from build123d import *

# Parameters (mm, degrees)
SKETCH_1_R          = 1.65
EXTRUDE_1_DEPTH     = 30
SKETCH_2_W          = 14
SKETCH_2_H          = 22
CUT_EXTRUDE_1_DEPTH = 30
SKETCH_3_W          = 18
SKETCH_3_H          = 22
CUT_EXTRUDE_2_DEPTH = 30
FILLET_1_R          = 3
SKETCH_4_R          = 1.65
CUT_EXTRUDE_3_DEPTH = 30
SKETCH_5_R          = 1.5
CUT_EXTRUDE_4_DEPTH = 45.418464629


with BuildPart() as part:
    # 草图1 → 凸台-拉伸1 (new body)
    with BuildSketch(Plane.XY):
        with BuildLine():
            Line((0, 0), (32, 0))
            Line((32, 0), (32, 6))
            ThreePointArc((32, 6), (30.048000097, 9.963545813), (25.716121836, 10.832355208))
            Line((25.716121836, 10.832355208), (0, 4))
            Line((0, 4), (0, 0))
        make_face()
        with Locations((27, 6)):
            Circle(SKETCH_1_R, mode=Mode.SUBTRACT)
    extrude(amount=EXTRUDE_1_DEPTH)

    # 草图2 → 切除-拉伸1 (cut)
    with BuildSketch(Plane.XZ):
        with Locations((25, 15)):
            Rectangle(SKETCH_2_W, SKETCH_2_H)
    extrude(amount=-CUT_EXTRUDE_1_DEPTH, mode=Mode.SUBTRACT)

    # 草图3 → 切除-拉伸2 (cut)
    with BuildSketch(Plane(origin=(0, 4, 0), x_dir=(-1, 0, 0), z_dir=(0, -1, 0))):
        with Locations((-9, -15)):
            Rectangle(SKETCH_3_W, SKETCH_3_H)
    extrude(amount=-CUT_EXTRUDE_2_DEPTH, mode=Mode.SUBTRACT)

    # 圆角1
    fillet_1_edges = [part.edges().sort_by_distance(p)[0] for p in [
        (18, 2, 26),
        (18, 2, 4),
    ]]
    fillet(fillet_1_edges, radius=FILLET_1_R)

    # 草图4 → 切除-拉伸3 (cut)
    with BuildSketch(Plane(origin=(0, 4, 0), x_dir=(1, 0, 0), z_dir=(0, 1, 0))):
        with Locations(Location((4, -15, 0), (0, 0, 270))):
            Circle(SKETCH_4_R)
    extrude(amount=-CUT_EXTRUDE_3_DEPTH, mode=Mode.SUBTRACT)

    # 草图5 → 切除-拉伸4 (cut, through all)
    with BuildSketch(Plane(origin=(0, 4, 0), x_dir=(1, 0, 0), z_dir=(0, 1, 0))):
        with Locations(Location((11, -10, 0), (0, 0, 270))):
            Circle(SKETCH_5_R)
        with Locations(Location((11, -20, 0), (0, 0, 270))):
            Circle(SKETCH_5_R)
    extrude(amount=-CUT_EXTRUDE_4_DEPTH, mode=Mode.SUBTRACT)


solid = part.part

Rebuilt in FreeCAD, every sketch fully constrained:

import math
import FreeCAD as App
import Part
import Sketcher
from FreeCAD import Vector


def edges_at(feature, points):
    """Names of the edges that pass closest to the given points."""
    edges = feature.Shape.Edges
    near = lambda p: min(range(len(edges)), key=lambda i: edges[i].distToShape(Part.Vertex(*p))[0])
    return sorted({f"Edge{near(p) + 1}" for p in points})


def add_polygon(sketch, points):
    """Adds a closed chain of lines whose ends are joined by coincident constraints."""
    first, n = sketch.GeometryCount, len(points)
    for a, b in zip(points, points[1:] + points[:1]):
        sketch.addGeometry(Part.LineSegment(App.Vector(*a, 0), App.Vector(*b, 0)), False)
    for i in range(n):
        sketch.addConstraint(Sketcher.Constraint("Coincident", first + i, 2, first + (i + 1) % n, 1))

doc = App.newDocument("Part")
body = doc.addObject("PartDesign::Body", "Body")

# Sketch on XY plane
sketch1 = body.newObject("Sketcher::SketchObject", "Sketch")
sketch1.AttachmentSupport = (doc.getObject("XY_Plane"), [""])
sketch1.MapMode = "FlatFace"
sketch1.addGeometry([
    Part.LineSegment(Vector(0, 0, 0), Vector(32, 0, 0)),  # 0
    Part.LineSegment(Vector(32, 0, 0), Vector(32, 6, 0)),  # 1
    Part.ArcOfCircle(Part.Circle(Vector(27, 6, 0), Vector(0, 0, 1), 5), math.radians(0), math.radians(105)),  # 2
    Part.LineSegment(Vector(25.7, 10.8, 0), Vector(0, 4, 0)),  # 3
    Part.LineSegment(Vector(0, 4, 0), Vector(0, 0, 0)),  # 4
    Part.Circle(Vector(27, 6, 0), Vector(0, 0, 1), 1.6),  # 5
], False)
sketch1.addConstraint([
    Sketcher.Constraint("Coincident", 0, 2, 1, 1),
    Sketcher.Constraint("Tangent", 1, 2, 2, 1),
    Sketcher.Constraint("Tangent", 2, 2, 3, 1),
    Sketcher.Constraint("Coincident", 3, 2, 4, 1),
    Sketcher.Constraint("Coincident", 4, 2, 0, 1),
    Sketcher.Constraint("Horizontal", 0),
    Sketcher.Constraint("Vertical", 1),
    Sketcher.Constraint("Vertical", 4),
    Sketcher.Constraint("Coincident", 4, 2, -1, 1),
    Sketcher.Constraint("Coincident", 5, 3, 2, 3),
    Sketcher.Constraint("Radius", 2, 5.0),
    Sketcher.Constraint("Diameter", 5, 3.3),
    Sketcher.Constraint("DistanceX", 0, 1, 0, 2, 32.0),
    Sketcher.Constraint("DistanceY", 1, 1, 1, 2, 6.0),
    Sketcher.Constraint("DistanceY", 4, 2, 4, 1, 4.0),
])
pad1 = body.newObject("PartDesign::Pad", "Pad")
pad1.Profile = sketch1
pad1.Length = 30

# Sketch on XZ plane
sketch2 = body.newObject("Sketcher::SketchObject", "Sketch001")
sketch2.AttachmentSupport = (doc.getObject("XZ_Plane"), [""])
sketch2.MapMode = "FlatFace"
add_polygon(sketch2, [(18, 26), (18, 4), (32, 4), (32, 26)])  # lines 0-3
sketch2.addConstraint([
    Sketcher.Constraint("Vertical", 0),
    Sketcher.Constraint("Horizontal", 1),
    Sketcher.Constraint("Vertical", 2),
    Sketcher.Constraint("Horizontal", 3),
    Sketcher.Constraint("DistanceX", 1, 1, 1, 2, 14.0),
    Sketcher.Constraint("DistanceY", 0, 2, 0, 1, 22.0),
    Sketcher.Constraint("DistanceX", -1, 1, 0, 2, 18.0),
    Sketcher.Constraint("DistanceY", -1, 1, 0, 2, 4.0),
])
pocket1 = body.newObject("PartDesign::Pocket", "Pocket")
pocket1.Profile = sketch2
pocket1.Length = 30

# Sketch on XZ plane
sketch3 = body.newObject("Sketcher::SketchObject", "Sketch002")
sketch3.AttachmentSupport = (doc.getObject("XZ_Plane"), [""])
sketch3.MapMode = "FlatFace"
sketch3.AttachmentOffset = App.Placement(Vector(0, 0, -4), App.Rotation())
add_polygon(sketch3, [(18, 4), (18, 26), (0, 26), (0, 4)])  # lines 0-3
sketch3.addConstraint([
    Sketcher.Constraint("Vertical", 0),
    Sketcher.Constraint("Horizontal", 1),
    Sketcher.Constraint("Vertical", 2),
    Sketcher.Constraint("Horizontal", 3),
    Sketcher.Constraint("PointOnObject", 1, 2, -2),
    Sketcher.Constraint("DistanceX", 1, 2, 1, 1, 18.0),
    Sketcher.Constraint("DistanceY", 0, 1, 0, 2, 22.0),
    Sketcher.Constraint("DistanceY", -1, 1, 0, 2, 26.0),
])
pocket2 = body.newObject("PartDesign::Pocket", "Pocket001")
pocket2.Profile = sketch3
pocket2.Length = 30
doc.recompute()

fillet = body.newObject("PartDesign::Fillet", "Fillet")
fillet.Base = (pocket2, edges_at(pocket2, [(18, 2, 26), (18, 2, 4)]))
fillet.Radius = 3

# Sketch on XZ plane
sketch4 = body.newObject("Sketcher::SketchObject", "Sketch003")
sketch4.AttachmentSupport = (doc.getObject("XZ_Plane"), [""])
sketch4.MapMode = "FlatFace"
sketch4.AttachmentOffset = App.Placement(Vector(0, 0, -4), App.Rotation())
sketch4.addGeometry(Part.Circle(Vector(4, 15, 0), Vector(0, 0, 1), 1.6), False)
sketch4.addConstraint([
    Sketcher.Constraint("Diameter", 0, 3.3),
    Sketcher.Constraint("DistanceX", -1, 1, 0, 3, 4.0),
    Sketcher.Constraint("DistanceY", -1, 1, 0, 3, 15.0),
])
pocket3 = body.newObject("PartDesign::Pocket", "Pocket002")
pocket3.Profile = sketch4
pocket3.Length = 30
pocket3.Reversed = True

# Sketch on XZ plane
sketch5 = body.newObject("Sketcher::SketchObject", "Sketch004")
sketch5.AttachmentSupport = (doc.getObject("XZ_Plane"), [""])
sketch5.MapMode = "FlatFace"
sketch5.AttachmentOffset = App.Placement(Vector(0, 0, -4), App.Rotation())
sketch5.addGeometry([
    Part.Circle(Vector(11, 10, 0), Vector(0, 0, 1), 1.5),
    Part.Circle(Vector(11, 20, 0), Vector(0, 0, 1), 1.5),
], False)
sketch5.addConstraint([
    Sketcher.Constraint("Equal", 0, 1),
    Sketcher.Constraint("Vertical", 0, 3, 1, 3),
    Sketcher.Constraint("Diameter", 0, 3.0),
    Sketcher.Constraint("DistanceX", -1, 1, 0, 3, 11.0),
    Sketcher.Constraint("DistanceY", -1, 1, 0, 3, 10.0),
    Sketcher.Constraint("DistanceY", -1, 1, 1, 3, 20.0),
])
pocket4 = body.newObject("PartDesign::Pocket", "Pocket003")
pocket4.Profile = sketch5
pocket4.Type = "ThroughAll"
pocket4.Reversed = True

doc.recompute()
